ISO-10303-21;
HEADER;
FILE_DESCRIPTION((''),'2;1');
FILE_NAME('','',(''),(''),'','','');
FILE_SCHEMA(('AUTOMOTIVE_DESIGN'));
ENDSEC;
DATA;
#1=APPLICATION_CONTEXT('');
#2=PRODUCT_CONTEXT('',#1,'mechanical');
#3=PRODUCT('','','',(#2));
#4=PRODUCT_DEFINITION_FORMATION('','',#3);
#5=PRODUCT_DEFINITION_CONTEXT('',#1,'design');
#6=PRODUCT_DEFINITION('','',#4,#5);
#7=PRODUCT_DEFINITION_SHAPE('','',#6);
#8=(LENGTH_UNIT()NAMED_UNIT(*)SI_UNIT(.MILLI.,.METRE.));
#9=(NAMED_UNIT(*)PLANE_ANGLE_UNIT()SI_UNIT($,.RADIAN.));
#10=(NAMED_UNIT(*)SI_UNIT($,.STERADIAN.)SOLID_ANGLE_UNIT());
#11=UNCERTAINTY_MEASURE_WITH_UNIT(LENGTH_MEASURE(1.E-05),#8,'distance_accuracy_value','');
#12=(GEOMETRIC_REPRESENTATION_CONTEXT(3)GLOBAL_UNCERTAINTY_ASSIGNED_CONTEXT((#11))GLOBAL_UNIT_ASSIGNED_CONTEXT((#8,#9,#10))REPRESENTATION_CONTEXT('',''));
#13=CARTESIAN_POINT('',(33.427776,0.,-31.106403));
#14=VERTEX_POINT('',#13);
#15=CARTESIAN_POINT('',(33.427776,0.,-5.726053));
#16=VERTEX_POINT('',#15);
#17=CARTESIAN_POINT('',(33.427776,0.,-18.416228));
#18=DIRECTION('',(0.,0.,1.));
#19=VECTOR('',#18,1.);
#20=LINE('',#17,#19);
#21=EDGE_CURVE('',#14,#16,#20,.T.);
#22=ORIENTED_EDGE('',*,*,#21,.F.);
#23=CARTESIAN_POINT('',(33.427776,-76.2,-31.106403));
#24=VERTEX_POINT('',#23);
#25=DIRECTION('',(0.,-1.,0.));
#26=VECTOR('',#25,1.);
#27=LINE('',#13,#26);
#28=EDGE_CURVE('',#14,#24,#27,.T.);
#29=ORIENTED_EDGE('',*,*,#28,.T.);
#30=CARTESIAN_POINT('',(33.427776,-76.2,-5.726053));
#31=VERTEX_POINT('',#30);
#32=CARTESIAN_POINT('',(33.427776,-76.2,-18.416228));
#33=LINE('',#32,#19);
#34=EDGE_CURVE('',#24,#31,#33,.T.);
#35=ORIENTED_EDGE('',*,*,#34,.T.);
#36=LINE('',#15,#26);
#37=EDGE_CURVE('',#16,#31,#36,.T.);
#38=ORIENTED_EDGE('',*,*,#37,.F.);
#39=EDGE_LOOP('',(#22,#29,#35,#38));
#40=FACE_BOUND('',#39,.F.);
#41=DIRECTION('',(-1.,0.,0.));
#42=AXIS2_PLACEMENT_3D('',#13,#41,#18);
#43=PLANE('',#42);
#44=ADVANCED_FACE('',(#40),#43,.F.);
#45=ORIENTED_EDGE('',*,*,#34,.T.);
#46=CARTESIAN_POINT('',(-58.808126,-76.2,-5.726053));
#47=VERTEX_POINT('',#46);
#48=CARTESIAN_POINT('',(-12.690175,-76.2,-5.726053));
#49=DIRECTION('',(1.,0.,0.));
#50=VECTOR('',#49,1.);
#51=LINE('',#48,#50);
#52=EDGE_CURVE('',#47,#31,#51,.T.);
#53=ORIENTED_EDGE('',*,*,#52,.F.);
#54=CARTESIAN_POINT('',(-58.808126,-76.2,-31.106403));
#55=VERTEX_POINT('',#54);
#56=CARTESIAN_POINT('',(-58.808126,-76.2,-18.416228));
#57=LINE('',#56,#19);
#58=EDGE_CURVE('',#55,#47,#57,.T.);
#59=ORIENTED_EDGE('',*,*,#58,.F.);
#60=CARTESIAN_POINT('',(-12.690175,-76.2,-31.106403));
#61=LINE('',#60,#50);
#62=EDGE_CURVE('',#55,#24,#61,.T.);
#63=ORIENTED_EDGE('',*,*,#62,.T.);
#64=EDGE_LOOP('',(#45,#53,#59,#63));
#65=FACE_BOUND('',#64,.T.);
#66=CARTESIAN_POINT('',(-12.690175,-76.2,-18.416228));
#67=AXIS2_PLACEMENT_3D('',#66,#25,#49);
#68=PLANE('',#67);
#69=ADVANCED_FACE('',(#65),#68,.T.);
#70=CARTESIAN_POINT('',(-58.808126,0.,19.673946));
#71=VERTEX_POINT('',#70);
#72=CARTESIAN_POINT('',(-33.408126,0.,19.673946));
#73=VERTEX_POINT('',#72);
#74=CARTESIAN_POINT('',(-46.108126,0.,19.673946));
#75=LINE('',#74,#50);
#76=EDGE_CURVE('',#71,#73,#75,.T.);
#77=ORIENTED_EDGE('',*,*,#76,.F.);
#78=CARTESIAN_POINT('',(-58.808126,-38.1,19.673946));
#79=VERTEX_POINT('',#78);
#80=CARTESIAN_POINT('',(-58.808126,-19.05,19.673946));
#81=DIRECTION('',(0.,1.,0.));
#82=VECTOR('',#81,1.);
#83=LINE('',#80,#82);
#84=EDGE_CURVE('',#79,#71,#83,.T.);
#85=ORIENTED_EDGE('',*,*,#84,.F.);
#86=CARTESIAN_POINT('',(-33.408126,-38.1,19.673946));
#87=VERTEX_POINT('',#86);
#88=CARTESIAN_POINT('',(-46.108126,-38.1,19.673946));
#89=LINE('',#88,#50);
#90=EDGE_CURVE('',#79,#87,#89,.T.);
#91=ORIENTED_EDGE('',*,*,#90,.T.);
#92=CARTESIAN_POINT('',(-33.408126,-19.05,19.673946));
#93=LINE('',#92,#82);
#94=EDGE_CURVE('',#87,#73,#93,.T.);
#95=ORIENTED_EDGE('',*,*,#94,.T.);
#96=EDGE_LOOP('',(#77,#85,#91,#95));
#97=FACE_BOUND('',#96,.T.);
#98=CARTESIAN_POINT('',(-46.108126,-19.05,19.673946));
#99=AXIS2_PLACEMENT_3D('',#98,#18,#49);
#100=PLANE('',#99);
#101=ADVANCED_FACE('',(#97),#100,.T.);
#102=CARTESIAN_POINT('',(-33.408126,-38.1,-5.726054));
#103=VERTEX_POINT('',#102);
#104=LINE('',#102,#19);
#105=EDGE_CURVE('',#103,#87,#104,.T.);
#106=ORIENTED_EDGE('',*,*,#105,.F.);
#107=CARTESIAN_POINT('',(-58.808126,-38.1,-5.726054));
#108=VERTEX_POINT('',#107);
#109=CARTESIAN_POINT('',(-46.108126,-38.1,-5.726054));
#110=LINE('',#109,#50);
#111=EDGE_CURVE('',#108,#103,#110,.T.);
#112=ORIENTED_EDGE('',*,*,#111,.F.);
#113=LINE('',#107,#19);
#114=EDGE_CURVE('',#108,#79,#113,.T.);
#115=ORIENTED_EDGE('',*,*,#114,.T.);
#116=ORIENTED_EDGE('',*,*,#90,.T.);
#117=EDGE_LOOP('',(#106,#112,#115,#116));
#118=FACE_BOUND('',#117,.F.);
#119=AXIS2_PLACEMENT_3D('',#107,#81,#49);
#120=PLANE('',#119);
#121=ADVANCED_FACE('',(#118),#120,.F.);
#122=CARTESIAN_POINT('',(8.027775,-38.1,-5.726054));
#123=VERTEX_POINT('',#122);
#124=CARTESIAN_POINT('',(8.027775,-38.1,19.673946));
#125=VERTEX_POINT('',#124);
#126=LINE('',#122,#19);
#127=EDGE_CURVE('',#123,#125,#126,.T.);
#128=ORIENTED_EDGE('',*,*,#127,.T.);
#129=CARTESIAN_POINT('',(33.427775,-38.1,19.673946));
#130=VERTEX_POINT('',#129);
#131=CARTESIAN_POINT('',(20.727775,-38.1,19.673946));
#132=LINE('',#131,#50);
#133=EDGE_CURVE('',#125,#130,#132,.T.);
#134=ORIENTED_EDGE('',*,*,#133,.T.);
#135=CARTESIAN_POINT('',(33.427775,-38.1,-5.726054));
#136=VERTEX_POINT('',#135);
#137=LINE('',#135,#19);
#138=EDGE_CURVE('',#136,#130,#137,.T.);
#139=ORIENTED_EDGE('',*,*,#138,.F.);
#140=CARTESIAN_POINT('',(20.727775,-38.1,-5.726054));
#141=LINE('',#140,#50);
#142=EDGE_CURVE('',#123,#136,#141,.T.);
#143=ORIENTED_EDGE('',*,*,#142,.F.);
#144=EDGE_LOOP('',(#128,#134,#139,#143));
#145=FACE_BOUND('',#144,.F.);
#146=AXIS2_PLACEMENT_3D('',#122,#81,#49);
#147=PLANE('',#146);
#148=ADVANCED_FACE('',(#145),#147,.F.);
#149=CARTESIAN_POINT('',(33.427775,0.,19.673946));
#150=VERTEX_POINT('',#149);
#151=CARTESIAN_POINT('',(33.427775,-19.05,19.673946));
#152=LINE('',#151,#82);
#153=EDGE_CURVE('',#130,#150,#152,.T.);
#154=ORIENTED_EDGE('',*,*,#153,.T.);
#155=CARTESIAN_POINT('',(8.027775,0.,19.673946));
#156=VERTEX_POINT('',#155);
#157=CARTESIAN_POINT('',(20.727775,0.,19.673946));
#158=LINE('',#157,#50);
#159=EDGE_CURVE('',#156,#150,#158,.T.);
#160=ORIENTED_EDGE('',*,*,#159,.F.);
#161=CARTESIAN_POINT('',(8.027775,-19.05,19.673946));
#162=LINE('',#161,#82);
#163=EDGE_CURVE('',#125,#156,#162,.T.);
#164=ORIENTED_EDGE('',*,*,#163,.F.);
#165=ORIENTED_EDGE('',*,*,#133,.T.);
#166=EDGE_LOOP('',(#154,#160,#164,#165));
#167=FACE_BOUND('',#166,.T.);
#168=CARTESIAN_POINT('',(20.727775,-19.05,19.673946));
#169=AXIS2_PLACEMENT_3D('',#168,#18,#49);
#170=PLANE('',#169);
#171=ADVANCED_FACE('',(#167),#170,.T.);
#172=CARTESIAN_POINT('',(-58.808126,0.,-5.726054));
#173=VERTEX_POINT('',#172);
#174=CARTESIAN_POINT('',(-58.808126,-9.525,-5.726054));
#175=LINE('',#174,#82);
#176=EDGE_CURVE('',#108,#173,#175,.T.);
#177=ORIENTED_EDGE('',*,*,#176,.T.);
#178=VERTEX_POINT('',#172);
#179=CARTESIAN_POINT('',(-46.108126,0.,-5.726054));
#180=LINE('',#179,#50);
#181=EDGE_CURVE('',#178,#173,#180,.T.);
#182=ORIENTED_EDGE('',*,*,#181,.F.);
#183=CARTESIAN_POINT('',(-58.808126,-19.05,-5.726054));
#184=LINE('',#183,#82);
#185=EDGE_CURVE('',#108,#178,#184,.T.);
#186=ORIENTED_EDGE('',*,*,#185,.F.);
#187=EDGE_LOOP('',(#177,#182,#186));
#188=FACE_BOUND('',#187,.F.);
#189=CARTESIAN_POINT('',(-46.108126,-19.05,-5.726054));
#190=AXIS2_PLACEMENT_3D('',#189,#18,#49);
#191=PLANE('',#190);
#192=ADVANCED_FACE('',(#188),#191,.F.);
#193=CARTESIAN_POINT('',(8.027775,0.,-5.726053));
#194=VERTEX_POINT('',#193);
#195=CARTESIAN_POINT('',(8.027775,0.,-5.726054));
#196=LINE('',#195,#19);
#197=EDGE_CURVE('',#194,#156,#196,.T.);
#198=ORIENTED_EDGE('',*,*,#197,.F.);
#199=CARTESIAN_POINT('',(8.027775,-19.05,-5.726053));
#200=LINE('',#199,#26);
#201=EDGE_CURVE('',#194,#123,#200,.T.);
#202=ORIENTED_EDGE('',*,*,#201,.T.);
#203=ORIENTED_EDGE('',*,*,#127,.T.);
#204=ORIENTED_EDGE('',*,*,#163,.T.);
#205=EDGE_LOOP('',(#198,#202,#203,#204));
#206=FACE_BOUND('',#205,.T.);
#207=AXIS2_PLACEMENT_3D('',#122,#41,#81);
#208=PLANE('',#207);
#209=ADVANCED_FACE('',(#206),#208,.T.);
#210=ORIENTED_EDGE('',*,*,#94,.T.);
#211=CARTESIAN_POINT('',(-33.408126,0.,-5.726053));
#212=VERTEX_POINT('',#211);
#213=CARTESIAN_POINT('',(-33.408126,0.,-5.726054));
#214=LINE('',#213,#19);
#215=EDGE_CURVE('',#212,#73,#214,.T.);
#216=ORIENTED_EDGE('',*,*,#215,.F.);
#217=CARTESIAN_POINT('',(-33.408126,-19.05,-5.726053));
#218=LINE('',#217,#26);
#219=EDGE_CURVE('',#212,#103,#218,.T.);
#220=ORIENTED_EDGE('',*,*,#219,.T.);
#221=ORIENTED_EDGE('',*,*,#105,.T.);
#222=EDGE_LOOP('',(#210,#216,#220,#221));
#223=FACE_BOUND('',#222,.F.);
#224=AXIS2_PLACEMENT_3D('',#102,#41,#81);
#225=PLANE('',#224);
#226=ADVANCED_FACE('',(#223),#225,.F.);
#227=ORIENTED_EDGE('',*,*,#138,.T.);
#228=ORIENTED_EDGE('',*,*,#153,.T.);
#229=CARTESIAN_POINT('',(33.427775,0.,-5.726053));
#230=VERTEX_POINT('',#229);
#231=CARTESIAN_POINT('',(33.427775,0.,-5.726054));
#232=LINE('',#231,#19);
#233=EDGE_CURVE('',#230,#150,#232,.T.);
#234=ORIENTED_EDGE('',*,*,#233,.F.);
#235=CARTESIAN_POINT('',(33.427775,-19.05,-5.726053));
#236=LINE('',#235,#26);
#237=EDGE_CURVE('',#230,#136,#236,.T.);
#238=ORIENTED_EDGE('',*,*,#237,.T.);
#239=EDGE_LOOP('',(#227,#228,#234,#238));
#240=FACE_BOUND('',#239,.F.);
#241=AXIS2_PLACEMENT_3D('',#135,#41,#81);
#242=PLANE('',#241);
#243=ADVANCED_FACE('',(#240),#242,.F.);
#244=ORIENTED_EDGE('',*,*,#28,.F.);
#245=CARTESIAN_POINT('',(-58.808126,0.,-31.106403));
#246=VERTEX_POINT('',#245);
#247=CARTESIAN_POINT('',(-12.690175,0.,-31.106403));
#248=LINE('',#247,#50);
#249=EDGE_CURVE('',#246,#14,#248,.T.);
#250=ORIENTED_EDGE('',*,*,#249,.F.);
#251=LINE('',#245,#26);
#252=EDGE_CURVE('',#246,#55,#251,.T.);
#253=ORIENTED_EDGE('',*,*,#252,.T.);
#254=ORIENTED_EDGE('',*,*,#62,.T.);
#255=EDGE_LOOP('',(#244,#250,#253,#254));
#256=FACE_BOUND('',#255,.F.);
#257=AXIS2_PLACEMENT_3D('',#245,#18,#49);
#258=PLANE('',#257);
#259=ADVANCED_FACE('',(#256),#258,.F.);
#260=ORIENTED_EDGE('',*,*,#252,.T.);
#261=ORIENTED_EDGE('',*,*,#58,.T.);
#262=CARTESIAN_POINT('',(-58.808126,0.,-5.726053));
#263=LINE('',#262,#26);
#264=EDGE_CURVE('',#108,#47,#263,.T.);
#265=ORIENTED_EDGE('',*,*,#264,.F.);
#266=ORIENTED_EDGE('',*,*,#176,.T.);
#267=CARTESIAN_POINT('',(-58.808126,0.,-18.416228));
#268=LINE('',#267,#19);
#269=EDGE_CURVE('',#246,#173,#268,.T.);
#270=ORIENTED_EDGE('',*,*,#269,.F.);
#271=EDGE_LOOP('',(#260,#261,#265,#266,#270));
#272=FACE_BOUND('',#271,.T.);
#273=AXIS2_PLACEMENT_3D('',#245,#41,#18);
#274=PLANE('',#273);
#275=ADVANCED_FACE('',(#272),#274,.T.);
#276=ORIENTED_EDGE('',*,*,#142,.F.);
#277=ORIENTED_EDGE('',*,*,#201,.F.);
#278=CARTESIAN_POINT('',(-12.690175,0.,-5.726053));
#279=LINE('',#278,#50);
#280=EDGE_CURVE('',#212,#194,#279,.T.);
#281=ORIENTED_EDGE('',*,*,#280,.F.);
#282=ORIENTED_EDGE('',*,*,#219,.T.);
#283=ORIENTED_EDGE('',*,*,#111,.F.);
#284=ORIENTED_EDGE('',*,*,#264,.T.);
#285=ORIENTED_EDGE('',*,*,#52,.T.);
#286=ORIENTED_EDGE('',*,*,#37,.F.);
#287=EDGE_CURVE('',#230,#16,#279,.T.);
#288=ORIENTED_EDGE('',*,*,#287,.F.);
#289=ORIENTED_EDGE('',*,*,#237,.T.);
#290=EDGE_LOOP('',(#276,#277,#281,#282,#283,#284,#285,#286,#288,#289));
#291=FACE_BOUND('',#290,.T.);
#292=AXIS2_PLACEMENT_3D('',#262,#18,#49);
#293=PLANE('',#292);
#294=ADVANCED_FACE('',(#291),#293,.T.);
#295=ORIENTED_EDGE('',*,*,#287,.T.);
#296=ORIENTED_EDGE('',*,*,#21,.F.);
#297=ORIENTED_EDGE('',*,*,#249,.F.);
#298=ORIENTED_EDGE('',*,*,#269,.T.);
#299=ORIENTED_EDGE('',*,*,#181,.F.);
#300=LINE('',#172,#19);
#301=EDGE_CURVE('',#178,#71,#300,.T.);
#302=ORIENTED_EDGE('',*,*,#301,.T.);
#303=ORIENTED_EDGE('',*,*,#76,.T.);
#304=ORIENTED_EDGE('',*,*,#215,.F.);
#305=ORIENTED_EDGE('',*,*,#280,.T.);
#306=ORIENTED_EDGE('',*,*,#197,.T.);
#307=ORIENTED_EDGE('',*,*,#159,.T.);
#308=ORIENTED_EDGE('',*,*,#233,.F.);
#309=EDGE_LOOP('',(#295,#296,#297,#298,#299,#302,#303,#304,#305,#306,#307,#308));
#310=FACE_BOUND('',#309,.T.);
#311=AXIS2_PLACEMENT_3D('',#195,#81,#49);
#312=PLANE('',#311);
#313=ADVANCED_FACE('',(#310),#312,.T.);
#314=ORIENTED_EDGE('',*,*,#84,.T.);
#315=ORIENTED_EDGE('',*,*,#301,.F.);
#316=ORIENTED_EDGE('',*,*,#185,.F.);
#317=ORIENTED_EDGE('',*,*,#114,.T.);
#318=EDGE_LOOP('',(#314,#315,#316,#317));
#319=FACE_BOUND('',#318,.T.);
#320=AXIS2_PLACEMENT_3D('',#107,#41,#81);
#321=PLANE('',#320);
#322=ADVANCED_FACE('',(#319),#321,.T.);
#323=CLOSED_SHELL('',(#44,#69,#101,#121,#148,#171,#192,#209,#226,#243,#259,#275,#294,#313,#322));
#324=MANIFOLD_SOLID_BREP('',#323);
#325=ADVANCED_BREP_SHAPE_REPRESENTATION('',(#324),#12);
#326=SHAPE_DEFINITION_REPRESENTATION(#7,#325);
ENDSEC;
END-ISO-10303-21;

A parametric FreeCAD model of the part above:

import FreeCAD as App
import Part
import Sketcher

V = App.Vector
Q = App.Units.Quantity

doc = App.newDocument("Part")
body = doc.addObject("PartDesign::Body", "Body")

# Sketch on XZ plane
sketch1 = doc.addObject("Sketcher::SketchObject", "Sketch")
body.addObject(sketch1)
sketch1.AttachmentSupport = (doc.XZ_Plane, [""])
sketch1.MapMode = "FlatFace"
sketch1.addGeometry([
    Part.LineSegment(V(-59, -6, 0), V(-59, -31, 0)),
    Part.LineSegment(V(-59, -31, 0), V(33, -31, 0)),
    Part.LineSegment(V(33, -31, 0), V(33, -6, 0)),
    Part.LineSegment(V(33, -6, 0), V(-59, -6, 0)),
], False)
sketch1.addConstraint([
    Sketcher.Constraint("Coincident", 0, 2, 1, 1),
    Sketcher.Constraint("Coincident", 1, 2, 2, 1),
    Sketcher.Constraint("Coincident", 2, 2, 3, 1),
    Sketcher.Constraint("Coincident", 3, 2, 0, 1),
    Sketcher.Constraint("Vertical", 0),
    Sketcher.Constraint("Horizontal", 1),
    Sketcher.Constraint("Vertical", 2),
    Sketcher.Constraint("Horizontal", 3),
    Sketcher.Constraint("DistanceX", 1, 1, 1, 2, 92.235901),
    Sketcher.Constraint("DistanceY", 0, 2, 0, 1, 25.380349),
    Sketcher.Constraint("DistanceX", 0, 2, -1, 1, 58.808126),
    Sketcher.Constraint("DistanceY", 0, 2, -1, 1, 31.106403),
])
pad1 = doc.addObject("PartDesign::Pad", "Pad")
body.addObject(pad1)
pad1.Profile = sketch1
pad1.Length = Q("3 in")

# Sketch on XY plane
sketch2 = doc.addObject("Sketcher::SketchObject", "Sketch001")
body.addObject(sketch2)
sketch2.AttachmentSupport = (doc.XY_Plane, [""])
sketch2.MapMode = "FlatFace"
sketch2.AttachmentOffset = App.Placement(V(0, 0, -5.726054), App.Rotation())
sketch2.addGeometry([
    Part.LineSegment(V(-59, 0, 0), V(-59, -38, 0)),
    Part.LineSegment(V(-59, -38, 0), V(-33, -38, 0)),
    Part.LineSegment(V(-33, -38, 0), V(-33, 0, 0)),
    Part.LineSegment(V(-33, 0, 0), V(-59, 0, 0)),
], False)
sketch2.addConstraint([
    Sketcher.Constraint("Coincident", 0, 2, 1, 1),
    Sketcher.Constraint("Coincident", 1, 2, 2, 1),
    Sketcher.Constraint("Coincident", 2, 2, 3, 1),
    Sketcher.Constraint("Coincident", 3, 2, 0, 1),
    Sketcher.Constraint("Vertical", 0),
    Sketcher.Constraint("Horizontal", 1),
    Sketcher.Constraint("Vertical", 2),
    Sketcher.Constraint("Horizontal", 3),
    Sketcher.Constraint("PointOnObject", 2, 2, -1),
    Sketcher.Constraint("DistanceX", 1, 1, 1, 2, Q("1 in")),
    Sketcher.Constraint("DistanceY", 0, 2, 0, 1, Q("1.5 in")),
    Sketcher.Constraint("DistanceX", 0, 2, -1, 1, 58.808126),
])
pad2 = doc.addObject("PartDesign::Pad", "Pad001")
body.addObject(pad2)
pad2.Profile = sketch2
pad2.Length = Q("1 in")

# Sketch on XY plane
sketch3 = doc.addObject("Sketcher::SketchObject", "Sketch002")
body.addObject(sketch3)
sketch3.AttachmentSupport = (doc.XY_Plane, [""])
sketch3.MapMode = "FlatFace"
sketch3.AttachmentOffset = App.Placement(V(0, 0, -5.726054), App.Rotation())
sketch3.addGeometry([
    Part.LineSegment(V(8, 0, 0), V(8, -38, 0)),
    Part.LineSegment(V(8, -38, 0), V(33, -38, 0)),
    Part.LineSegment(V(33, -38, 0), V(33, 0, 0)),
    Part.LineSegment(V(33, 0, 0), V(8, 0, 0)),
], False)
sketch3.addConstraint([
    Sketcher.Constraint("Coincident", 0, 2, 1, 1),
    Sketcher.Constraint("Coincident", 1, 2, 2, 1),
    Sketcher.Constraint("Coincident", 2, 2, 3, 1),
    Sketcher.Constraint("Coincident", 3, 2, 0, 1),
    Sketcher.Constraint("Vertical", 0),
    Sketcher.Constraint("Horizontal", 1),
    Sketcher.Constraint("Vertical", 2),
    Sketcher.Constraint("Horizontal", 3),
    Sketcher.Constraint("PointOnObject", 2, 2, -1),
    Sketcher.Constraint("DistanceX", 1, 1, 1, 2, Q("1 in")),
    Sketcher.Constraint("DistanceY", 0, 2, 0, 1, Q("1.5 in")),
    Sketcher.Constraint("DistanceX", -1, 1, 0, 2, 8.027775),
])
pad3 = doc.addObject("PartDesign::Pad", "Pad002")
body.addObject(pad3)
pad3.Profile = sketch3
pad3.Length = Q("1 in")

doc.recompute()
